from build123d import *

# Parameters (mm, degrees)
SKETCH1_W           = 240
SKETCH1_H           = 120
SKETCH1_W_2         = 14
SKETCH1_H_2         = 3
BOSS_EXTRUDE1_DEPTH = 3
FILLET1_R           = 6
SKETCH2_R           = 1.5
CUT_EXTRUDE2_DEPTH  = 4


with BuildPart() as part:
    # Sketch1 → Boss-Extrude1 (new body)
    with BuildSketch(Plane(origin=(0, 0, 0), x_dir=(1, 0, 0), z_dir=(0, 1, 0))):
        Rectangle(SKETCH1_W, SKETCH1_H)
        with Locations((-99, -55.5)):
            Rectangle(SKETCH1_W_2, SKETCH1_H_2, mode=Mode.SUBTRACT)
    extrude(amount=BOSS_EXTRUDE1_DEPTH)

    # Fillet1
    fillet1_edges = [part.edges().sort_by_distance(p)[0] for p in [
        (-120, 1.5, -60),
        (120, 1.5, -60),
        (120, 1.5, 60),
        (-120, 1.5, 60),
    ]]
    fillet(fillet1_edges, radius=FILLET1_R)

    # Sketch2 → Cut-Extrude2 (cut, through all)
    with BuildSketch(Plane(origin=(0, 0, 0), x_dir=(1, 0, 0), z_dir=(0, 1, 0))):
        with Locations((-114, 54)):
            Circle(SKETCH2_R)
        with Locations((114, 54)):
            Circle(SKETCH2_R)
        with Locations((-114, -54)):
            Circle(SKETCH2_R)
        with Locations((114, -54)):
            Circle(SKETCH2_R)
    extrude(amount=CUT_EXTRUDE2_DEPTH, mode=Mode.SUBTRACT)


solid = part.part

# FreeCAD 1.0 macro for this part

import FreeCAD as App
import Part
import Sketcher

V = App.Vector
Q = App.Units.Quantity


def edges_at(feature, points):
    """Names of the edges that pass closest to the given points."""
    edges = feature.Shape.Edges
    near = lambda p: min(range(len(edges)), key=lambda i: edges[i].distToShape(Part.Vertex(*p))[0])
    return sorted({f"Edge{near(p) + 1}" for p in points})

doc = App.newDocument("Part")
params = doc.addObject("Spreadsheet::Sheet", "Params")
for row, (alias, value) in enumerate([
    ("sketch1_width", "240 mm"),
    ("sketch1_width2", "14 mm"),
    ("sketch1_height", "120 mm"),
    ("sketch1_height2", "3 mm"),
    ("pad1_length", "3 mm"),
    ("fillet_radius", "6 mm"),
    ("sketch2_diameter", "3 mm"),
], start=1):
    params.set(f"A{row}", alias)
    params.set(f"B{row}", "=" + value)
    params.setAlias(f"B{row}", alias)

body = doc.addObject("PartDesign::Body", "Body")

sketch1 = body.newObject("Sketcher::SketchObject", "Sketch")
sketch1.AttachmentSupport = (doc.getObject("XZ_Plane"), [""])
sketch1.MapMode = "FlatFace"
sketch1.addGeometry([
    Part.LineSegment(V(-120, -60, 0), V(-120, 60, 0)),
    Part.LineSegment(V(-120, 60, 0), V(120, 60, 0)),
    Part.LineSegment(V(120, 60, 0), V(120, -60, 0)),
    Part.LineSegment(V(120, -60, 0), V(-120, -60, 0)),
    Part.LineSegment(V(-92, 57, 0), V(-106, 57, 0)),
    Part.LineSegment(V(-106, 57, 0), V(-106, 54, 0)),
    Part.LineSegment(V(-106, 54, 0), V(-92, 54, 0)),
    Part.LineSegment(V(-92, 54, 0), V(-92, 57, 0)),
], False)
sketch1.addConstraint([
    Sketcher.Constraint("Coincident", 0, 2, 1, 1),
    Sketcher.Constraint("Coincident", 1, 2, 2, 1),
    Sketcher.Constraint("Coincident", 2, 2, 3, 1),
    Sketcher.Constraint("Coincident", 3, 2, 0, 1),
    Sketcher.Constraint("Coincident", 4, 2, 5, 1),
    Sketcher.Constraint("Coincident", 5, 2, 6, 1),
    Sketcher.Constraint("Coincident", 6, 2, 7, 1),
    Sketcher.Constraint("Coincident", 7, 2, 4, 1),
    Sketcher.Constraint("Vertical", 0),
    Sketcher.Constraint("Horizontal", 1),
    Sketcher.Constraint("Vertical", 2),
    Sketcher.Constraint("Horizontal", 3),
    Sketcher.Constraint("Horizontal", 4),
    Sketcher.Constraint("Vertical", 5),
    Sketcher.Constraint("Horizontal", 6),
    Sketcher.Constraint("Vertical", 7),
    Sketcher.Constraint("Symmetric", 0, 2, 2, 2, -1, 1),
    Sketcher.Constraint("DistanceX", 1, 1, 1, 2, Q("240 mm")),
    Sketcher.Constraint("DistanceX", 4, 2, 4, 1, Q("14 mm")),
    Sketcher.Constraint("DistanceY", 0, 1, 0, 2, Q("120 mm")),
    Sketcher.Constraint("DistanceY", 5, 2, 5, 1, Q("3 mm")),
    Sketcher.Constraint("DistanceX", 4, 2, -1, 1, Q("106 mm")),
    Sketcher.Constraint("DistanceY", -1, 1, 4, 2, Q("57 mm")),
])
sketch1.setExpression("Constraints[17]", "Params.sketch1_width")
sketch1.setExpression("Constraints[18]", "Params.sketch1_width2")
sketch1.setExpression("Constraints[19]", "Params.sketch1_height")
sketch1.setExpression("Constraints[20]", "Params.sketch1_height2")
pad1 = body.newObject("PartDesign::Pad", "Pad")
pad1.Profile = sketch1
pad1.setExpression("Length", "Params.pad1_length")
pad1.Reversed = True
doc.recompute()

fillet = body.newObject("PartDesign::Fillet", "Fillet")
fillet.Base = (pad1, edges_at(pad1, [
    (-120, 1.5, -60),
    (120, 1.5, -60),
    (120, 1.5, 60),
    (-120, 1.5, 60),
]))
fillet.setExpression("Radius", "Params.fillet_radius")

sketch2 = body.newObject("Sketcher::SketchObject", "Sketch001")
sketch2.AttachmentSupport = (doc.getObject("XZ_Plane"), [""])
sketch2.MapMode = "FlatFace"
sketch2.addGeometry([
    Part.Circle(V(-114, -54, 0), V(0, 0, 1), 1.5),
    Part.Circle(V(114, -54, 0), V(0, 0, 1), 1.5),
    Part.Circle(V(-114, 54, 0), V(0, 0, 1), 1.5),
    Part.Circle(V(114, 54, 0), V(0, 0, 1), 1.5),
], False)
sketch2.addConstraint([
    Sketcher.Constraint("Equal", 0, 1),
    Sketcher.Constraint("Equal", 1, 2),
    Sketcher.Constraint("Equal", 2, 3),
    Sketcher.Constraint("Symmetric", 1, 3, 2, 3, -1, 1),
    Sketcher.Constraint("Symmetric", 0, 3, 3, 3, -1, 1),
    Sketcher.Constraint("Symmetric", 0, 3, 1, 3, -2),
    Sketcher.Constraint("Diameter", 0, Q("3 mm")),
    Sketcher.Constraint("DistanceX", 0, 3, -1, 1, Q("114 mm")),
    Sketcher.Constraint("DistanceY", 0, 3, -1, 1, Q("54 mm")),
])
sketch2.setExpression("Constraints[6]", "Params.sketch2_diameter")
pocket1 = body.newObject("PartDesign::Pocket", "Pocket")
pocket1.Profile = sketch2
pocket1.Type = "ThroughAll"

doc.recompute()
